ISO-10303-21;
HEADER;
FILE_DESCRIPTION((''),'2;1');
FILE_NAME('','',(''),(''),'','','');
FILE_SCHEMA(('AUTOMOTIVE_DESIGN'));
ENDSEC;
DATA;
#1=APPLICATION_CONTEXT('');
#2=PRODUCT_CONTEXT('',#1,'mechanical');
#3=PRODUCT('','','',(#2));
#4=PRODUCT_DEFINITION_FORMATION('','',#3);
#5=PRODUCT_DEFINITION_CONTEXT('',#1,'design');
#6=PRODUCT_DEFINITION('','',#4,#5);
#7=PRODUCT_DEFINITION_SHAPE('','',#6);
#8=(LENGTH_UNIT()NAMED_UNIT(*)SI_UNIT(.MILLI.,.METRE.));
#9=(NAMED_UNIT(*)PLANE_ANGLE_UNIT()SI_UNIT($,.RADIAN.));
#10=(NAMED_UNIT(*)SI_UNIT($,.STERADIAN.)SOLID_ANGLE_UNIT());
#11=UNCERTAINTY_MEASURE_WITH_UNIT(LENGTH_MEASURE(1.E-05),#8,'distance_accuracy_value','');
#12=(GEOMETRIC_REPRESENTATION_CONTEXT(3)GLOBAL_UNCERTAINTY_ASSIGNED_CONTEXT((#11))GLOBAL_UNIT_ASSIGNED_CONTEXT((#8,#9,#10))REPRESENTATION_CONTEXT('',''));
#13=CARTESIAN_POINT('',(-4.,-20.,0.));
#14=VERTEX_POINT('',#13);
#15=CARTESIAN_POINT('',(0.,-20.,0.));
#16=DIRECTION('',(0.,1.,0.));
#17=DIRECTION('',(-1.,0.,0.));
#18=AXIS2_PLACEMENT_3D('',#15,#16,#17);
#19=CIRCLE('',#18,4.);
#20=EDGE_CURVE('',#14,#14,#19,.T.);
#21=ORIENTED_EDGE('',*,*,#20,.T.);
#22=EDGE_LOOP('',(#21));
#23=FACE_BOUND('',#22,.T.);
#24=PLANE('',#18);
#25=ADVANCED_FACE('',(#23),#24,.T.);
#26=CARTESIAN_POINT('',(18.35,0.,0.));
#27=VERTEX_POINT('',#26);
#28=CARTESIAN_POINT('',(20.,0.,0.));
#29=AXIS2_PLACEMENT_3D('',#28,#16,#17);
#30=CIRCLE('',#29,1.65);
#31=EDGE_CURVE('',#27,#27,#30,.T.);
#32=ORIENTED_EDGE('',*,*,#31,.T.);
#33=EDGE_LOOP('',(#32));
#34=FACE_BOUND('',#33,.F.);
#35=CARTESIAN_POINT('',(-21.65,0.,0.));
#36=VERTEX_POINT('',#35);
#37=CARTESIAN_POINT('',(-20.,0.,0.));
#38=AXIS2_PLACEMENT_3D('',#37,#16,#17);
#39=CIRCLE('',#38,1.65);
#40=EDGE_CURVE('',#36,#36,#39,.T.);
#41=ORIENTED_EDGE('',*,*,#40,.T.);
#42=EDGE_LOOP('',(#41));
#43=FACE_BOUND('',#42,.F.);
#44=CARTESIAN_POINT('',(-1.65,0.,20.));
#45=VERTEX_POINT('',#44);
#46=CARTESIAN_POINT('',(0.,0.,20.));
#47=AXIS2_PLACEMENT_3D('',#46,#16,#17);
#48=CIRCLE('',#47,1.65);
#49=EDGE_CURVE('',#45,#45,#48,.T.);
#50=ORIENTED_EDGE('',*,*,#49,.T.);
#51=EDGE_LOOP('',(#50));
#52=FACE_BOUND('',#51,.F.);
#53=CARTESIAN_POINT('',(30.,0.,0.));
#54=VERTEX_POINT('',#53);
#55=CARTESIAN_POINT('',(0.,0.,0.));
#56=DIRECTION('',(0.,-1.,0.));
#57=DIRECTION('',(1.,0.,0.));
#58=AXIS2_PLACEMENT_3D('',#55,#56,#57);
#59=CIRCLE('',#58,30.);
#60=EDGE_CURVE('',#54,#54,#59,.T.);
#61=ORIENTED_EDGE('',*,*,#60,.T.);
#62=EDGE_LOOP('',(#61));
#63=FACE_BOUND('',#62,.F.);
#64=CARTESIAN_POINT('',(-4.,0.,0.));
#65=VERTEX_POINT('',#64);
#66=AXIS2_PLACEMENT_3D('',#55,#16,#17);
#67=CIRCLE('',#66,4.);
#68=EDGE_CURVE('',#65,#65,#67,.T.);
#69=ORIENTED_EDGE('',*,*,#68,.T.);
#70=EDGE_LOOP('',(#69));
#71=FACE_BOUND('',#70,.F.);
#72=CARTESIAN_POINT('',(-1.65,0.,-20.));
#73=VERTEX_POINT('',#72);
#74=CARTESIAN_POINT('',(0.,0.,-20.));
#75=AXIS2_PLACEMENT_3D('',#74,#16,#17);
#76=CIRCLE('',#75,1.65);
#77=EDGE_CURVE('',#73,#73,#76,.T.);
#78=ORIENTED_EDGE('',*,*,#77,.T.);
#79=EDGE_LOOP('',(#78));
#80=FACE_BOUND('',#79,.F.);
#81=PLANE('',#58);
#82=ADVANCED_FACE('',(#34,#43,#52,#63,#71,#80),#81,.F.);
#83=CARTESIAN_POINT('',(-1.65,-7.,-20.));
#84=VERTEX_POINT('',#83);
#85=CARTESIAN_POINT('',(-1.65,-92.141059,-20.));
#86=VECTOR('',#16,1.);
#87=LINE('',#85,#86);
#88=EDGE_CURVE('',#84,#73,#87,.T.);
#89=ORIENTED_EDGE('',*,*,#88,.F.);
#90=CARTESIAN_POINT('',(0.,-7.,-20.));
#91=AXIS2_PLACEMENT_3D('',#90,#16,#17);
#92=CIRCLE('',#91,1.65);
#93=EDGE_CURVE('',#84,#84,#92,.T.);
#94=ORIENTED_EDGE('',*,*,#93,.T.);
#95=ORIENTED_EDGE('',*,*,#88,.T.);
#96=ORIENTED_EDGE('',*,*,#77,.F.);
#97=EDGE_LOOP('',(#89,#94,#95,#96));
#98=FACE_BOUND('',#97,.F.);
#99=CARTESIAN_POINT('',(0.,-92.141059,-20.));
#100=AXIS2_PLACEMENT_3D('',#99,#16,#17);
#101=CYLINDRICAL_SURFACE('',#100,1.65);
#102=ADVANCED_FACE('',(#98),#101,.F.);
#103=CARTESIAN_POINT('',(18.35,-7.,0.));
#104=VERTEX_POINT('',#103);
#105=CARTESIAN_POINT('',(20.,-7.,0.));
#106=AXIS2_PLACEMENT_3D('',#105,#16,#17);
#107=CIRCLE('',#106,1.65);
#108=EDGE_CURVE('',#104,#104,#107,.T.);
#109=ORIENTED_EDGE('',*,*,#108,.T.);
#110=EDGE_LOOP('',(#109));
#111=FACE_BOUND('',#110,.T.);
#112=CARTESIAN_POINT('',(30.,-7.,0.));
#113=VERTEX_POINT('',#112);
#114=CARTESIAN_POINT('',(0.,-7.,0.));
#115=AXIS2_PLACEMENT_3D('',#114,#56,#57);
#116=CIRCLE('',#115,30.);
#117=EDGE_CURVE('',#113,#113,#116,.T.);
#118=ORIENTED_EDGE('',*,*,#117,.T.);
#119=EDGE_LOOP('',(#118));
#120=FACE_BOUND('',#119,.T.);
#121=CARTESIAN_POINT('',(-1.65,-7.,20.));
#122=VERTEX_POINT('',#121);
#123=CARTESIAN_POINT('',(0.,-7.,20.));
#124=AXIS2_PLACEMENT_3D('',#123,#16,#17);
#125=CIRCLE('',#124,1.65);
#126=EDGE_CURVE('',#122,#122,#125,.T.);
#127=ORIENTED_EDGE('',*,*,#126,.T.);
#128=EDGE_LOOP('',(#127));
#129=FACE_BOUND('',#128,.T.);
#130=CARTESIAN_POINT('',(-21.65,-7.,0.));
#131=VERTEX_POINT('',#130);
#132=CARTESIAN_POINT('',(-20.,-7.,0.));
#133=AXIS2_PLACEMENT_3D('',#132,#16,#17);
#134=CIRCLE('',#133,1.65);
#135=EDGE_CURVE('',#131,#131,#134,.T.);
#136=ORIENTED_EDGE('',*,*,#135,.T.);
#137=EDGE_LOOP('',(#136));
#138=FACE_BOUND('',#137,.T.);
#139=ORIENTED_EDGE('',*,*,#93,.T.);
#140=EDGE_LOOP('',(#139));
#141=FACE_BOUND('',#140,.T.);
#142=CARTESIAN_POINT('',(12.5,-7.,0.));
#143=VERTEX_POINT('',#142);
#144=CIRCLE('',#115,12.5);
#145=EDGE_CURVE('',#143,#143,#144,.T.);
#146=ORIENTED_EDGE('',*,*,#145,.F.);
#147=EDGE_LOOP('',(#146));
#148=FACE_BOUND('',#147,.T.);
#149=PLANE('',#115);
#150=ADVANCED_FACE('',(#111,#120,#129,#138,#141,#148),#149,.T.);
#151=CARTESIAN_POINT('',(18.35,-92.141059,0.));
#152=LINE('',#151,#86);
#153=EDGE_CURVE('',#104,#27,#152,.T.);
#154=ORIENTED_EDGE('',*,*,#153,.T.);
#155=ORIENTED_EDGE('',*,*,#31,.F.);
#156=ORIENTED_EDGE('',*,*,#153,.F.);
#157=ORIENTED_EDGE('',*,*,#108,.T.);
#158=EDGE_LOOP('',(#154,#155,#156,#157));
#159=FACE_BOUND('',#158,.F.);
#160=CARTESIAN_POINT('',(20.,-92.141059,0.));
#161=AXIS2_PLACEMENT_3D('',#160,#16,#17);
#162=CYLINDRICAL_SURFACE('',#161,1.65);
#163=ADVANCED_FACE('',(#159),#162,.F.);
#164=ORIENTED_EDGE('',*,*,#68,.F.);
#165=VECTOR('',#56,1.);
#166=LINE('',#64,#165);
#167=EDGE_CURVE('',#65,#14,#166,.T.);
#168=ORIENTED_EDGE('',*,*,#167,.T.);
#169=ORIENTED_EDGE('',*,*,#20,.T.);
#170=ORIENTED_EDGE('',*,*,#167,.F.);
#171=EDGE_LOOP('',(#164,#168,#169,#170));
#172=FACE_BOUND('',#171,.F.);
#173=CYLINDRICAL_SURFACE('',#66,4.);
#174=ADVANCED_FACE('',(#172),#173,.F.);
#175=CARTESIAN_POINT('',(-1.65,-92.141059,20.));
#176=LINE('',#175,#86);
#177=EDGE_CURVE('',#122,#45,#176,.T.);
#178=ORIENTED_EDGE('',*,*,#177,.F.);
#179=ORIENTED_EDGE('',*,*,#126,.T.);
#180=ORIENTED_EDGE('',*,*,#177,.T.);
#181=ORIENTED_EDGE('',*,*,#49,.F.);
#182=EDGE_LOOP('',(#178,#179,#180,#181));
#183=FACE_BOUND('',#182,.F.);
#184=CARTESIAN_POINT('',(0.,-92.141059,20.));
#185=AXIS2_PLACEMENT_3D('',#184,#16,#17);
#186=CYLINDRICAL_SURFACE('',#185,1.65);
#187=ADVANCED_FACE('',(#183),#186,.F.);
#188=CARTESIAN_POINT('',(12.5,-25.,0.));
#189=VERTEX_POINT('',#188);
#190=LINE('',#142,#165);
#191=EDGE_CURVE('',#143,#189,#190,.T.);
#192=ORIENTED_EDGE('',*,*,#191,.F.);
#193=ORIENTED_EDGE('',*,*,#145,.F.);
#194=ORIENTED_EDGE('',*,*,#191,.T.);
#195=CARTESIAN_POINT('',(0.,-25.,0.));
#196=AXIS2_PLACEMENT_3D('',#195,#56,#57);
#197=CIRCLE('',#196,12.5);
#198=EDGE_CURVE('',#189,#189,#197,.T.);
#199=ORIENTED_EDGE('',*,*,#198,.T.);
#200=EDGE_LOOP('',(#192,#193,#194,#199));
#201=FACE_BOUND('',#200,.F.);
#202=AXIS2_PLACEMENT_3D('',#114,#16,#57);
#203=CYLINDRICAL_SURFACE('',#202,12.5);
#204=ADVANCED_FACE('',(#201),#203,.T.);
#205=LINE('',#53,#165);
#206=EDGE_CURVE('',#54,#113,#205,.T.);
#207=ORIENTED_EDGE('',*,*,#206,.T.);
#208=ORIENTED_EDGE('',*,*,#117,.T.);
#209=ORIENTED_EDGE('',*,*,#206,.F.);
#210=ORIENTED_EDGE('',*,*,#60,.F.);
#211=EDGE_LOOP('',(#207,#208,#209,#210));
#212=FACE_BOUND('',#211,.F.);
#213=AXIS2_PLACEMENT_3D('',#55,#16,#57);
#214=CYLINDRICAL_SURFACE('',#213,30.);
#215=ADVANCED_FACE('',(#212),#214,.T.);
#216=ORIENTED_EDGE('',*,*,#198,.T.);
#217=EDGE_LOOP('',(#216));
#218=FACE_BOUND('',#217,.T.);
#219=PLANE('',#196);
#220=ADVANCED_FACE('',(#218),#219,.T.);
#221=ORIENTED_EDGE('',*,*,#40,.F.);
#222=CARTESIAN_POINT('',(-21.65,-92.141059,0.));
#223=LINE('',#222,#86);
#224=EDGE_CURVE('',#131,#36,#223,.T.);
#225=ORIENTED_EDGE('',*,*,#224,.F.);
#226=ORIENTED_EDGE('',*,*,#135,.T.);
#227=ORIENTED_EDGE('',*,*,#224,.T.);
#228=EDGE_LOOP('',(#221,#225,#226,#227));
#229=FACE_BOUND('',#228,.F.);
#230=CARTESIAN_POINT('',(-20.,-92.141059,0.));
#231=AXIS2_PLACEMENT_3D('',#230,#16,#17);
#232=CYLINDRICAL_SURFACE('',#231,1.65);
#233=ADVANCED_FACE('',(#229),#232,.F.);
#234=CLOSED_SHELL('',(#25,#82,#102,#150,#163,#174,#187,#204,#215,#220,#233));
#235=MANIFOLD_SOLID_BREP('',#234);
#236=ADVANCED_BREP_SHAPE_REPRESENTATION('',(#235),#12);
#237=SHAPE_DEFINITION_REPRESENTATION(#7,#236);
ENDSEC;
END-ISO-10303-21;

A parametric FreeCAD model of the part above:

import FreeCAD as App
import Part
import Sketcher
Q = App.Units.Quantity

doc = App.newDocument("Part")
params = doc.addObject("Spreadsheet::Sheet", "Params")
for row, (alias, value) in enumerate([
    ("sketch1_diameter", "60 mm"),
    ("pad1_length", "7 mm"),
    ("sketch2_diameter", "3.3 mm"),
    ("hole_diameter", "3.3 mm"),
    ("sketch3_diameter", "25 mm"),
    ("pad2_length", "18 mm"),
    ("sketch4_diameter", "8 mm"),
    ("pocket1_length", "20 mm"),
    ("pad3_length", "25 mm"),
], start=1):
    params.set(f"A{row}", alias)
    params.set(f"B{row}", "=" + value)
    params.setAlias(f"B{row}", alias)

body = doc.addObject("PartDesign::Body", "Body")

sketch1 = body.newObject("Sketcher::SketchObject", "Sketch")
sketch1.AttachmentSupport = (doc.getObject("XZ_Plane"), [""])
sketch1.MapMode = "FlatFace"
sketch1.addGeometry(Part.Circle(App.Vector(0, 0, 0), App.Vector(0, 0, 1), 30), False)
sketch1.addConstraint([
    Sketcher.Constraint("Coincident", 0, 3, -1, 1),
    Sketcher.Constraint("Diameter", 0, Q("60 mm")),
])
sketch1.setExpression("Constraints[1]", "Params.sketch1_diameter")
pad1 = body.newObject("PartDesign::Pad", "Pad")
pad1.Profile = sketch1
pad1.setExpression("Length", "Params.pad1_length")

sketch2 = body.newObject("Sketcher::SketchObject", "Sketch001")
sketch2.AttachmentSupport = (doc.getObject("XZ_Plane"), [""])
sketch2.MapMode = "FlatFace"
sketch2.AttachmentOffset = App.Placement(App.Vector(0, 0, 7), App.Rotation())
sketch2.addGeometry([
    Part.Circle(App.Vector(0, 20, 0), App.Vector(0, 0, 1), 1.6),
    Part.Circle(App.Vector(20, 0, 0), App.Vector(0, 0, 1), 1.6),
    Part.Circle(App.Vector(0, -20, 0), App.Vector(0, 0, 1), 1.6),
    Part.Circle(App.Vector(-20, 0, 0), App.Vector(0, 0, 1), 1.6),
], False)
sketch2.addConstraint([
    Sketcher.Constraint("Equal", 0, 1),
    Sketcher.Constraint("Equal", 1, 2),
    Sketcher.Constraint("Equal", 2, 3),
    Sketcher.Constraint("Symmetric", 0, 3, 2, 3, -1, 1),
    Sketcher.Constraint("Symmetric", 1, 3, 3, 3, -1, 1),
    Sketcher.Constraint("PointOnObject", 0, 3, -2),
    Sketcher.Constraint("PointOnObject", 1, 3, -1),
    Sketcher.Constraint("Diameter", 0, Q("3.3 mm")),
    Sketcher.Constraint("DistanceY", -1, 1, 0, 3, Q("20 mm")),
    Sketcher.Constraint("DistanceX", -1, 1, 1, 3, Q("20 mm")),
])
sketch2.setExpression("Constraints[7]", "Params.sketch2_diameter")
doc.recompute()
hole = body.newObject("PartDesign::Hole", "Hole")
hole.Profile = sketch2
hole.ThreadType = "None"
hole.setExpression("Diameter", "Params.hole_diameter")
hole.DepthType = "ThroughAll"

sketch3 = body.newObject("Sketcher::SketchObject", "Sketch002")
sketch3.AttachmentSupport = (doc.getObject("XZ_Plane"), [""])
sketch3.MapMode = "FlatFace"
sketch3.AttachmentOffset = App.Placement(App.Vector(0, 0, 7), App.Rotation())
sketch3.addGeometry(Part.Circle(App.Vector(0, 0, 0), App.Vector(0, 0, 1), 12), False)
sketch3.addConstraint([
    Sketcher.Constraint("Coincident", 0, 3, -1, 1),
    Sketcher.Constraint("Diameter", 0, Q("25 mm")),
])
sketch3.setExpression("Constraints[1]", "Params.sketch3_diameter")
pad2 = body.newObject("PartDesign::Pad", "Pad001")
pad2.Profile = sketch3
pad2.setExpression("Length", "Params.pad2_length")

sketch4 = body.newObject("Sketcher::SketchObject", "Sketch003")
sketch4.AttachmentSupport = (doc.getObject("XZ_Plane"), [""])
sketch4.MapMode = "FlatFace"
sketch4.addGeometry(Part.Circle(App.Vector(0, 0, 0), App.Vector(0, 0, 1), 4), False)
sketch4.addConstraint([
    Sketcher.Constraint("Coincident", 0, 3, -1, 1),
    Sketcher.Constraint("Diameter", 0, Q("8 mm")),
])
sketch4.setExpression("Constraints[1]", "Params.sketch4_diameter")
pocket1 = body.newObject("PartDesign::Pocket", "Pocket")
pocket1.Profile = sketch4
pocket1.setExpression("Length", "Params.pocket1_length")
pocket1.Reversed = True
body2 = doc.addObject("PartDesign::Body", "Body001")

sketch5 = body2.newObject("Sketcher::SketchObject", "Sketch004")
sketch5.AttachmentSupport = (doc.getObject("XZ_Plane001"), [""])
sketch5.MapMode = "FlatFace"
sketch5.addGeometry(Part.Circle(App.Vector(0, 0, 0), App.Vector(0, 0, 1), 42), False)
sketch5.addConstraint([
    Sketcher.Constraint("Coincident", 0, 3, -1, 1),
    Sketcher.Constraint("Diameter", 0, Q("84.524139 mm")),
])
pad3 = body2.newObject("PartDesign::Pad", "Pad002")
pad3.Profile = sketch5
pad3.setExpression("Length", "Params.pad3_length")
body2.Visibility = False

doc.recompute()
